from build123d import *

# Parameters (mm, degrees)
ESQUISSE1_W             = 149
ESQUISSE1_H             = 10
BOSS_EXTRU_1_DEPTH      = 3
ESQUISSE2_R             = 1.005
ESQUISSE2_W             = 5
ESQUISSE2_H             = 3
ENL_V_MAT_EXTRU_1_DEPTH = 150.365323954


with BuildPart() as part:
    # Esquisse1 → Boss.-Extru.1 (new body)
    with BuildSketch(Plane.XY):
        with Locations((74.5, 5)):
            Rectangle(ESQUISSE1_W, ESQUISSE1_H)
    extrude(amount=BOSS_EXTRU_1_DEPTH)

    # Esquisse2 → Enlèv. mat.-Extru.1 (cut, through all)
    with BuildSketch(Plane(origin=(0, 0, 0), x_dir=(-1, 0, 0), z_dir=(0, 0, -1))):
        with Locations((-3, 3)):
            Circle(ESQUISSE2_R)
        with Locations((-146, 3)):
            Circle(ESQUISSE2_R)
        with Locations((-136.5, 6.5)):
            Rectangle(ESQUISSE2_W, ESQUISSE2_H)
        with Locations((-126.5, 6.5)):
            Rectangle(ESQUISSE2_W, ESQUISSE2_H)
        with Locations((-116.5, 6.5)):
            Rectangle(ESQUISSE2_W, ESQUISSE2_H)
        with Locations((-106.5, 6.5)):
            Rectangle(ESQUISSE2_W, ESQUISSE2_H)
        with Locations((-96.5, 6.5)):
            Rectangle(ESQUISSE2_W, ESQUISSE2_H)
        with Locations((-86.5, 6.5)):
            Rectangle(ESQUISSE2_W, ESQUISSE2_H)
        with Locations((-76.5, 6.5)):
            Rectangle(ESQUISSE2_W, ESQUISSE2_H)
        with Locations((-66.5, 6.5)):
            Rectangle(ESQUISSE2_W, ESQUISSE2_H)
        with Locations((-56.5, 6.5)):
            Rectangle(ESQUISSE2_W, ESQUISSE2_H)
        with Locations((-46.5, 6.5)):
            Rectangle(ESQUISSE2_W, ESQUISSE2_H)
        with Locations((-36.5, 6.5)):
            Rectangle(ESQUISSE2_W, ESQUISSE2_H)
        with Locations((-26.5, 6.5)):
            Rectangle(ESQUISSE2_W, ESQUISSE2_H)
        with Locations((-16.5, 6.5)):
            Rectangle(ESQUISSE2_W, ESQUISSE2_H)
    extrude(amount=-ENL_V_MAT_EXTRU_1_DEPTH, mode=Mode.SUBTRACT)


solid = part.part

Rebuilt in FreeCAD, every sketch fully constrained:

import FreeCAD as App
import Part
import Sketcher
Q = App.Units.Quantity

doc = App.newDocument("Part")
params = doc.addObject("Spreadsheet::Sheet", "Params")
for row, (alias, value) in enumerate([
    ("sketch1_width", "149 mm"),
    ("sketch1_height", "10 mm"),
    ("pad1_length", "3 mm"),
    ("sketch2_diameter", "2.01 mm"),
    ("sketch2_width", "5 mm"),
    ("sketch2_height", "3 mm"),
], start=1):
    params.set(f"A{row}", alias)
    params.set(f"B{row}", "=" + value)
    params.setAlias(f"B{row}", alias)

body = doc.addObject("PartDesign::Body", "Body")

sketch1 = doc.addObject("Sketcher::SketchObject", "Sketch")
body.addObject(sketch1)
sketch1.AttachmentSupport = (doc.XY_Plane, [""])
sketch1.MapMode = "FlatFace"
sketch1.addGeometry([
    Part.LineSegment(App.Vector(0, 10, 0), App.Vector(0, 0, 0)),
    Part.LineSegment(App.Vector(0, 0, 0), App.Vector(149, 0, 0)),
    Part.LineSegment(App.Vector(149, 0, 0), App.Vector(149, 10, 0)),
    Part.LineSegment(App.Vector(149, 10, 0), App.Vector(0, 10, 0)),
], False)
sketch1.addConstraint([
    Sketcher.Constraint("Coincident", 0, 2, 1, 1),
    Sketcher.Constraint("Coincident", 1, 2, 2, 1),
    Sketcher.Constraint("Coincident", 2, 2, 3, 1),
    Sketcher.Constraint("Coincident", 3, 2, 0, 1),
    Sketcher.Constraint("Vertical", 0),
    Sketcher.Constraint("Horizontal", 1),
    Sketcher.Constraint("Vertical", 2),
    Sketcher.Constraint("Horizontal", 3),
    Sketcher.Constraint("Coincident", 0, 2, -1, 1),
    Sketcher.Constraint("DistanceX", 1, 1, 1, 2, Q("149 mm")),
    Sketcher.Constraint("DistanceY", 0, 2, 0, 1, Q("10 mm")),
])
sketch1.setExpression("Constraints[9]", "Params.sketch1_width")
sketch1.setExpression("Constraints[10]", "Params.sketch1_height")
pad1 = doc.addObject("PartDesign::Pad", "Pad")
body.addObject(pad1)
pad1.Profile = sketch1
pad1.setExpression("Length", "Params.pad1_length")

sketch2 = doc.addObject("Sketcher::SketchObject", "Sketch001")
body.addObject(sketch2)
sketch2.AttachmentSupport = (doc.XY_Plane, [""])
sketch2.MapMode = "FlatFace"
sketch2.addGeometry([
    Part.Circle(App.Vector(3, 3, 0), App.Vector(0, 0, 1), 1),
    Part.Circle(App.Vector(146, 3, 0), App.Vector(0, 0, 1), 1),
    Part.LineSegment(App.Vector(139, 8, 0), App.Vector(139, 5, 0)),
    Part.LineSegment(App.Vector(139, 5, 0), App.Vector(134, 5, 0)),
    Part.LineSegment(App.Vector(134, 5, 0), App.Vector(134, 8, 0)),
    Part.LineSegment(App.Vector(134, 8, 0), App.Vector(139, 8, 0)),
    Part.LineSegment(App.Vector(129, 8, 0), App.Vector(129, 5, 0)),
    Part.LineSegment(App.Vector(129, 5, 0), App.Vector(124, 5, 0)),
    Part.LineSegment(App.Vector(124, 5, 0), App.Vector(124, 8, 0)),
    Part.LineSegment(App.Vector(124, 8, 0), App.Vector(129, 8, 0)),
    Part.LineSegment(App.Vector(119, 8, 0), App.Vector(119, 5, 0)),
    Part.LineSegment(App.Vector(119, 5, 0), App.Vector(114, 5, 0)),
    Part.LineSegment(App.Vector(114, 5, 0), App.Vector(114, 8, 0)),
    Part.LineSegment(App.Vector(114, 8, 0), App.Vector(119, 8, 0)),
    Part.LineSegment(App.Vector(109, 8, 0), App.Vector(109, 5, 0)),
    Part.LineSegment(App.Vector(109, 5, 0), App.Vector(104, 5, 0)),
    Part.LineSegment(App.Vector(104, 5, 0), App.Vector(104, 8, 0)),
    Part.LineSegment(App.Vector(104, 8, 0), App.Vector(109, 8, 0)),
    Part.LineSegment(App.Vector(99, 8, 0), App.Vector(99, 5, 0)),
    Part.LineSegment(App.Vector(99, 5, 0), App.Vector(94, 5, 0)),
    Part.LineSegment(App.Vector(94, 5, 0), App.Vector(94, 8, 0)),
    Part.LineSegment(App.Vector(94, 8, 0), App.Vector(99, 8, 0)),
    Part.LineSegment(App.Vector(89, 8, 0), App.Vector(89, 5, 0)),
    Part.LineSegment(App.Vector(89, 5, 0), App.Vector(84, 5, 0)),
    Part.LineSegment(App.Vector(84, 5, 0), App.Vector(84, 8, 0)),
    Part.LineSegment(App.Vector(84, 8, 0), App.Vector(89, 8, 0)),
    Part.LineSegment(App.Vector(79, 8, 0), App.Vector(79, 5, 0)),
    Part.LineSegment(App.Vector(79, 5, 0), App.Vector(74, 5, 0)),
    Part.LineSegment(App.Vector(74, 5, 0), App.Vector(74, 8, 0)),
    Part.LineSegment(App.Vector(74, 8, 0), App.Vector(79, 8, 0)),
    Part.LineSegment(App.Vector(69, 8, 0), App.Vector(69, 5, 0)),
    Part.LineSegment(App.Vector(69, 5, 0), App.Vector(64, 5, 0)),
    Part.LineSegment(App.Vector(64, 5, 0), App.Vector(64, 8, 0)),
    Part.LineSegment(App.Vector(64, 8, 0), App.Vector(69, 8, 0)),
    Part.LineSegment(App.Vector(59, 8, 0), App.Vector(59, 5, 0)),
    Part.LineSegment(App.Vector(59, 5, 0), App.Vector(54, 5, 0)),
    Part.LineSegment(App.Vector(54, 5, 0), App.Vector(54, 8, 0)),
    Part.LineSegment(App.Vector(54, 8, 0), App.Vector(59, 8, 0)),
    Part.LineSegment(App.Vector(49, 8, 0), App.Vector(49, 5, 0)),
    Part.LineSegment(App.Vector(49, 5, 0), App.Vector(44, 5, 0)),
    Part.LineSegment(App.Vector(44, 5, 0), App.Vector(44, 8, 0)),
    Part.LineSegment(App.Vector(44, 8, 0), App.Vector(49, 8, 0)),
    Part.LineSegment(App.Vector(39, 8, 0), App.Vector(39, 5, 0)),
    Part.LineSegment(App.Vector(39, 5, 0), App.Vector(34, 5, 0)),
    Part.LineSegment(App.Vector(34, 5, 0), App.Vector(34, 8, 0)),
    Part.LineSegment(App.Vector(34, 8, 0), App.Vector(39, 8, 0)),
    Part.LineSegment(App.Vector(29, 8, 0), App.Vector(29, 5, 0)),
    Part.LineSegment(App.Vector(29, 5, 0), App.Vector(24, 5, 0)),
    Part.LineSegment(App.Vector(24, 5, 0), App.Vector(24, 8, 0)),
    Part.LineSegment(App.Vector(24, 8, 0), App.Vector(29, 8, 0)),
    Part.LineSegment(App.Vector(19, 8, 0), App.Vector(19, 5, 0)),
    Part.LineSegment(App.Vector(19, 5, 0), App.Vector(14, 5, 0)),
    Part.LineSegment(App.Vector(14, 5, 0), App.Vector(14, 8, 0)),
    Part.LineSegment(App.Vector(14, 8, 0), App.Vector(19, 8, 0)),
], False)
sketch2.addConstraint([
    Sketcher.Constraint("Coincident", 2, 2, 3, 1),
    Sketcher.Constraint("Coincident", 3, 2, 4, 1),
    Sketcher.Constraint("Coincident", 4, 2, 5, 1),
    Sketcher.Constraint("Coincident", 5, 2, 2, 1),
    Sketcher.Constraint("Coincident", 6, 2, 7, 1),
    Sketcher.Constraint("Coincident", 7, 2, 8, 1),
    Sketcher.Constraint("Coincident", 8, 2, 9, 1),
    Sketcher.Constraint("Coincident", 9, 2, 6, 1),
    Sketcher.Constraint("Coincident", 10, 2, 11, 1),
    Sketcher.Constraint("Coincident", 11, 2, 12, 1),
    Sketcher.Constraint("Coincident", 12, 2, 13, 1),
    Sketcher.Constraint("Coincident", 13, 2, 10, 1),
    Sketcher.Constraint("Coincident", 14, 2, 15, 1),
    Sketcher.Constraint("Coincident", 15, 2, 16, 1),
    Sketcher.Constraint("Coincident", 16, 2, 17, 1),
    Sketcher.Constraint("Coincident", 17, 2, 14, 1),
    Sketcher.Constraint("Coincident", 18, 2, 19, 1),
    Sketcher.Constraint("Coincident", 19, 2, 20, 1),
    Sketcher.Constraint("Coincident", 20, 2, 21, 1),
    Sketcher.Constraint("Coincident", 21, 2, 18, 1),
    Sketcher.Constraint("Coincident", 22, 2, 23, 1),
    Sketcher.Constraint("Coincident", 23, 2, 24, 1),
    Sketcher.Constraint("Coincident", 24, 2, 25, 1),
    Sketcher.Constraint("Coincident", 25, 2, 22, 1),
    Sketcher.Constraint("Coincident", 26, 2, 27, 1),
    Sketcher.Constraint("Coincident", 27, 2, 28, 1),
    Sketcher.Constraint("Coincident", 28, 2, 29, 1),
    Sketcher.Constraint("Coincident", 29, 2, 26, 1),
    Sketcher.Constraint("Coincident", 30, 2, 31, 1),
    Sketcher.Constraint("Coincident", 31, 2, 32, 1),
    Sketcher.Constraint("Coincident", 32, 2, 33, 1),
    Sketcher.Constraint("Coincident", 33, 2, 30, 1),
    Sketcher.Constraint("Coincident", 34, 2, 35, 1),
    Sketcher.Constraint("Coincident", 35, 2, 36, 1),
    Sketcher.Constraint("Coincident", 36, 2, 37, 1),
    Sketcher.Constraint("Coincident", 37, 2, 34, 1),
    Sketcher.Constraint("Coincident", 38, 2, 39, 1),
    Sketcher.Constraint("Coincident", 39, 2, 40, 1),
    Sketcher.Constraint("Coincident", 40, 2, 41, 1),
    Sketcher.Constraint("Coincident", 41, 2, 38, 1),
    Sketcher.Constraint("Coincident", 42, 2, 43, 1),
    Sketcher.Constraint("Coincident", 43, 2, 44, 1),
    Sketcher.Constraint("Coincident", 44, 2, 45, 1),
    Sketcher.Constraint("Coincident", 45, 2, 42, 1),
    Sketcher.Constraint("Coincident", 46, 2, 47, 1),
    Sketcher.Constraint("Coincident", 47, 2, 48, 1),
    Sketcher.Constraint("Coincident", 48, 2, 49, 1),
    Sketcher.Constraint("Coincident", 49, 2, 46, 1),
    Sketcher.Constraint("Coincident", 50, 2, 51, 1),
    Sketcher.Constraint("Coincident", 51, 2, 52, 1),
    Sketcher.Constraint("Coincident", 52, 2, 53, 1),
    Sketcher.Constraint("Coincident", 53, 2, 50, 1),
    Sketcher.Constraint("Vertical", 2),
    Sketcher.Constraint("Horizontal", 3),
    Sketcher.Constraint("Vertical", 4),
    Sketcher.Constraint("Horizontal", 5),
    Sketcher.Constraint("Vertical", 6),
    Sketcher.Constraint("Horizontal", 7),
    Sketcher.Constraint("Vertical", 8),
    Sketcher.Constraint("Horizontal", 9),
    Sketcher.Constraint("Vertical", 10),
    Sketcher.Constraint("Horizontal", 11),
    Sketcher.Constraint("Vertical", 12),
    Sketcher.Constraint("Horizontal", 13),
    Sketcher.Constraint("Vertical", 14),
    Sketcher.Constraint("Horizontal", 15),
    Sketcher.Constraint("Vertical", 16),
    Sketcher.Constraint("Horizontal", 17),
    Sketcher.Constraint("Vertical", 18),
    Sketcher.Constraint("Horizontal", 19),
    Sketcher.Constraint("Vertical", 20),
    Sketcher.Constraint("Horizontal", 21),
    Sketcher.Constraint("Vertical", 22),
    Sketcher.Constraint("Horizontal", 23),
    Sketcher.Constraint("Vertical", 24),
    Sketcher.Constraint("Horizontal", 25),
    Sketcher.Constraint("Vertical", 26),
    Sketcher.Constraint("Horizontal", 27),
    Sketcher.Constraint("Vertical", 28),
    Sketcher.Constraint("Horizontal", 29),
    Sketcher.Constraint("Vertical", 30),
    Sketcher.Constraint("Horizontal", 31),
    Sketcher.Constraint("Vertical", 32),
    Sketcher.Constraint("Horizontal", 33),
    Sketcher.Constraint("Vertical", 34),
    Sketcher.Constraint("Horizontal", 35),
    Sketcher.Constraint("Vertical", 36),
    Sketcher.Constraint("Horizontal", 37),
    Sketcher.Constraint("Vertical", 38),
    Sketcher.Constraint("Horizontal", 39),
    Sketcher.Constraint("Vertical", 40),
    Sketcher.Constraint("Horizontal", 41),
    Sketcher.Constraint("Vertical", 42),
    Sketcher.Constraint("Horizontal", 43),
    Sketcher.Constraint("Vertical", 44),
    Sketcher.Constraint("Horizontal", 45),
    Sketcher.Constraint("Vertical", 46),
    Sketcher.Constraint("Horizontal", 47),
    Sketcher.Constraint("Vertical", 48),
    Sketcher.Constraint("Horizontal", 49),
    Sketcher.Constraint("Vertical", 50),
    Sketcher.Constraint("Horizontal", 51),
    Sketcher.Constraint("Vertical", 52),
    Sketcher.Constraint("Horizontal", 53),
    Sketcher.Constraint("Equal", 0, 1),
    Sketcher.Constraint("Horizontal", 0, 3, 1, 3),
    Sketcher.Constraint("Horizontal", 3, 2, 6, 2),
    Sketcher.Constraint("Horizontal", 5, 2, 8, 2),
    Sketcher.Constraint("Horizontal", 7, 2, 10, 2),
    Sketcher.Constraint("Horizontal", 9, 2, 12, 2),
    Sketcher.Constraint("Horizontal", 11, 2, 14, 2),
    Sketcher.Constraint("Horizontal", 13, 2, 16, 2),
    Sketcher.Constraint("Horizontal", 15, 2, 18, 2),
    Sketcher.Constraint("Horizontal", 17, 2, 20, 2),
    Sketcher.Constraint("Horizontal", 19, 2, 22, 2),
    Sketcher.Constraint("Horizontal", 21, 2, 24, 2),
    Sketcher.Constraint("Horizontal", 23, 2, 26, 2),
    Sketcher.Constraint("Horizontal", 25, 2, 28, 2),
    Sketcher.Constraint("Horizontal", 27, 2, 30, 2),
    Sketcher.Constraint("Horizontal", 29, 2, 32, 2),
    Sketcher.Constraint("Horizontal", 31, 2, 34, 2),
    Sketcher.Constraint("Horizontal", 33, 2, 36, 2),
    Sketcher.Constraint("Horizontal", 35, 2, 38, 2),
    Sketcher.Constraint("Horizontal", 37, 2, 40, 2),
    Sketcher.Constraint("Horizontal", 39, 2, 42, 2),
    Sketcher.Constraint("Horizontal", 41, 2, 44, 2),
    Sketcher.Constraint("Horizontal", 43, 2, 46, 2),
    Sketcher.Constraint("Horizontal", 45, 2, 48, 2),
    Sketcher.Constraint("Horizontal", 47, 2, 50, 2),
    Sketcher.Constraint("Horizontal", 49, 2, 52, 2),
    Sketcher.Constraint("Equal", 5, 7),
    Sketcher.Constraint("Equal", 9, 11),
    Sketcher.Constraint("Equal", 13, 15),
    Sketcher.Constraint("Equal", 17, 19),
    Sketcher.Constraint("Equal", 21, 23),
    Sketcher.Constraint("Equal", 25, 27),
    Sketcher.Constraint("Equal", 29, 31),
    Sketcher.Constraint("Equal", 33, 35),
    Sketcher.Constraint("Equal", 37, 39),
    Sketcher.Constraint("Equal", 41, 43),
    Sketcher.Constraint("Equal", 45, 47),
    Sketcher.Constraint("Equal", 49, 51),
    Sketcher.Constraint("Diameter", 0, Q("2.01 mm")),
    Sketcher.Constraint("DistanceX", 3, 2, 3, 1, Q("5 mm")),
    Sketcher.Constraint("DistanceY", 2, 2, 2, 1, Q("3 mm")),
    Sketcher.Constraint("DistanceX", -1, 1, 0, 3, Q("3 mm")),
    Sketcher.Constraint("DistanceY", -1, 1, 0, 3, Q("3 mm")),
    Sketcher.Constraint("DistanceX", -1, 1, 1, 3, Q("146 mm")),
    Sketcher.Constraint("DistanceX", -1, 1, 2, 2, Q("139 mm")),
    Sketcher.Constraint("DistanceY", -1, 1, 2, 2, Q("5 mm")),
    Sketcher.Constraint("DistanceX", -1, 1, 6, 2, Q("129 mm")),
    Sketcher.Constraint("DistanceX", -1, 1, 10, 2, Q("119 mm")),
    Sketcher.Constraint("DistanceX", -1, 1, 14, 2, Q("109 mm")),
    Sketcher.Constraint("DistanceX", -1, 1, 18, 2, Q("99 mm")),
    Sketcher.Constraint("DistanceX", -1, 1, 22, 2, Q("89 mm")),
    Sketcher.Constraint("DistanceX", -1, 1, 26, 2, Q("79 mm")),
    Sketcher.Constraint("DistanceX", -1, 1, 30, 2, Q("69 mm")),
    Sketcher.Constraint("DistanceX", -1, 1, 34, 2, Q("59 mm")),
    Sketcher.Constraint("DistanceX", -1, 1, 38, 2, Q("49 mm")),
    Sketcher.Constraint("DistanceX", -1, 1, 42, 2, Q("39 mm")),
    Sketcher.Constraint("DistanceX", -1, 1, 46, 2, Q("29 mm")),
    Sketcher.Constraint("DistanceX", -1, 1, 50, 2, Q("19 mm")),
])
sketch2.setExpression("Constraints[142]", "Params.sketch2_diameter")
sketch2.setExpression("Constraints[143]", "Params.sketch2_width")
sketch2.setExpression("Constraints[144]", "Params.sketch2_height")
pocket1 = doc.addObject("PartDesign::Pocket", "Pocket")
body.addObject(pocket1)
pocket1.Profile = sketch2
pocket1.Type = "ThroughAll"
pocket1.Reversed = True

doc.recompute()
